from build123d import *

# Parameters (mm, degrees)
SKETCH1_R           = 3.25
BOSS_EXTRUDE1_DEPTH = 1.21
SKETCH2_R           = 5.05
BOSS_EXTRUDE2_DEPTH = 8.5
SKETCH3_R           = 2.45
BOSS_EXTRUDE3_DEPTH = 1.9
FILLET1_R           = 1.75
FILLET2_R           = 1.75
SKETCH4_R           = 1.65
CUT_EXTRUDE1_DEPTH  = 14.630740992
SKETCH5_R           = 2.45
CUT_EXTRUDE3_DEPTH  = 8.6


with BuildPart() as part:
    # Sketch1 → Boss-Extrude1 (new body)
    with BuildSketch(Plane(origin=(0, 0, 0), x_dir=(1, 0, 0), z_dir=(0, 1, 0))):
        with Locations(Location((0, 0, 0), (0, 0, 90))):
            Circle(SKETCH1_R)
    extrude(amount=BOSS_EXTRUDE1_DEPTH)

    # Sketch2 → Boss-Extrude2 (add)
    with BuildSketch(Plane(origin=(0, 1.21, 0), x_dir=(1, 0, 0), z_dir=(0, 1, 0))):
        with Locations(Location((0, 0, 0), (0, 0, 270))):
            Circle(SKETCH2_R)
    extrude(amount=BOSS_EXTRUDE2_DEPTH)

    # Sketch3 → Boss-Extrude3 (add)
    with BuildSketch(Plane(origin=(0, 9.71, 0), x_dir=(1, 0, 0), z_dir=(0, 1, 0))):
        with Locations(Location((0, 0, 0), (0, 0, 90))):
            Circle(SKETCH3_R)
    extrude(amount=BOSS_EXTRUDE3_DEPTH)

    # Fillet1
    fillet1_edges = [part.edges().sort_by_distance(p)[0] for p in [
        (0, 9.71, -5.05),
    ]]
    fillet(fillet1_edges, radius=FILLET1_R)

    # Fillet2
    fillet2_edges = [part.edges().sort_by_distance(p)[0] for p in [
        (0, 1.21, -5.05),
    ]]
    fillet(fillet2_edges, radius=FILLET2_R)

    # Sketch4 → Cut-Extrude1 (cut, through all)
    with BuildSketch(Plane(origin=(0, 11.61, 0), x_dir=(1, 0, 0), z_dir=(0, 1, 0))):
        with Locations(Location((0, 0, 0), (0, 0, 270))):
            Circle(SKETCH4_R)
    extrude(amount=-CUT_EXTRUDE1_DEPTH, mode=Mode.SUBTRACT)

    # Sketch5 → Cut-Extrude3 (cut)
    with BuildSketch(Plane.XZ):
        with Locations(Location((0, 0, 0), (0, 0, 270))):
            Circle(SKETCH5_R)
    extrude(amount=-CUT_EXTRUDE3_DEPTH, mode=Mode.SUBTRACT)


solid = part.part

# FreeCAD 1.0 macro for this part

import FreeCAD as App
import Part
import Sketcher

V = App.Vector


def edges_at(feature, points):
    """Names of the edges that pass closest to the given points."""
    edges = feature.Shape.Edges
    near = lambda p: min(range(len(edges)), key=lambda i: edges[i].distToShape(Part.Vertex(*p))[0])
    return sorted({f"Edge{near(p) + 1}" for p in points})

doc = App.newDocument("Part")
body = doc.addObject("PartDesign::Body", "Body")

# Sketch on XZ plane
sketch1 = body.newObject("Sketcher::SketchObject", "Sketch")
sketch1.AttachmentSupport = (doc.getObject("XZ_Plane"), [""])
sketch1.MapMode = "FlatFace"
sketch1.addGeometry(Part.Circle(V(0, 0, 0), V(0, 0, 1), 3.2), False)
sketch1.addConstraint([
    Sketcher.Constraint("Coincident", 0, 3, -1, 1),
    Sketcher.Constraint("Diameter", 0, 6.5),
])
pad1 = body.newObject("PartDesign::Pad", "Pad")
pad1.Profile = sketch1
pad1.Length = 1.21
pad1.Reversed = True

# Sketch on XZ plane
sketch2 = body.newObject("Sketcher::SketchObject", "Sketch001")
sketch2.AttachmentSupport = (doc.getObject("XZ_Plane"), [""])
sketch2.MapMode = "FlatFace"
sketch2.AttachmentOffset = App.Placement(V(0, 0, -1.21), App.Rotation())
sketch2.addGeometry(Part.Circle(V(0, 0, 0), V(0, 0, 1), 5), False)
sketch2.addConstraint([
    Sketcher.Constraint("Coincident", 0, 3, -1, 1),
    Sketcher.Constraint("Diameter", 0, 10.1),
])
pad2 = body.newObject("PartDesign::Pad", "Pad001")
pad2.Profile = sketch2
pad2.Length = 8.5
pad2.Reversed = True

# Sketch on XZ plane
sketch3 = body.newObject("Sketcher::SketchObject", "Sketch002")
sketch3.AttachmentSupport = (doc.getObject("XZ_Plane"), [""])
sketch3.MapMode = "FlatFace"
sketch3.AttachmentOffset = App.Placement(V(0, 0, -9.71), App.Rotation())
sketch3.addGeometry(Part.Circle(V(0, 0, 0), V(0, 0, 1), 2.5), False)
sketch3.addConstraint([
    Sketcher.Constraint("Coincident", 0, 3, -1, 1),
    Sketcher.Constraint("Diameter", 0, 4.9),
])
pad3 = body.newObject("PartDesign::Pad", "Pad002")
pad3.Profile = sketch3
pad3.Length = 1.9
pad3.Reversed = True
doc.recompute()

fillet = body.newObject("PartDesign::Fillet", "Fillet")
fillet.Base = (pad3, edges_at(pad3, [(0, 9.71, -5.05)]))
fillet.Radius = 1.75
doc.recompute()

fillet2 = body.newObject("PartDesign::Fillet", "Fillet001")
fillet2.Base = (fillet, edges_at(fillet, [(0, 1.21, -5.05)]))
fillet2.Radius = 1.75

# Sketch on XZ plane
sketch4 = body.newObject("Sketcher::SketchObject", "Sketch003")
sketch4.AttachmentSupport = (doc.getObject("XZ_Plane"), [""])
sketch4.MapMode = "FlatFace"
sketch4.AttachmentOffset = App.Placement(V(0, 0, -11.61), App.Rotation())
sketch4.addGeometry(Part.Circle(V(0, 0, 0), V(0, 0, 1), 1.6), False)
sketch4.addConstraint([
    Sketcher.Constraint("Coincident", 0, 3, -1, 1),
    Sketcher.Constraint("Diameter", 0, 3.3),
])
pocket1 = body.newObject("PartDesign::Pocket", "Pocket")
pocket1.Profile = sketch4
pocket1.Type = "ThroughAll"
pocket1.Reversed = True

# Sketch on XZ plane
sketch5 = body.newObject("Sketcher::SketchObject", "Sketch004")
sketch5.AttachmentSupport = (doc.getObject("XZ_Plane"), [""])
sketch5.MapMode = "FlatFace"
sketch5.addGeometry(Part.Circle(V(0, 0, 0), V(0, 0, 1), 2.5), False)
sketch5.addConstraint([
    Sketcher.Constraint("Coincident", 0, 3, -1, 1),
    Sketcher.Constraint("Diameter", 0, 4.9),
])
pocket2 = body.newObject("PartDesign::Pocket", "Pocket001")
pocket2.Profile = sketch5
pocket2.Length = 8.6

doc.recompute()
